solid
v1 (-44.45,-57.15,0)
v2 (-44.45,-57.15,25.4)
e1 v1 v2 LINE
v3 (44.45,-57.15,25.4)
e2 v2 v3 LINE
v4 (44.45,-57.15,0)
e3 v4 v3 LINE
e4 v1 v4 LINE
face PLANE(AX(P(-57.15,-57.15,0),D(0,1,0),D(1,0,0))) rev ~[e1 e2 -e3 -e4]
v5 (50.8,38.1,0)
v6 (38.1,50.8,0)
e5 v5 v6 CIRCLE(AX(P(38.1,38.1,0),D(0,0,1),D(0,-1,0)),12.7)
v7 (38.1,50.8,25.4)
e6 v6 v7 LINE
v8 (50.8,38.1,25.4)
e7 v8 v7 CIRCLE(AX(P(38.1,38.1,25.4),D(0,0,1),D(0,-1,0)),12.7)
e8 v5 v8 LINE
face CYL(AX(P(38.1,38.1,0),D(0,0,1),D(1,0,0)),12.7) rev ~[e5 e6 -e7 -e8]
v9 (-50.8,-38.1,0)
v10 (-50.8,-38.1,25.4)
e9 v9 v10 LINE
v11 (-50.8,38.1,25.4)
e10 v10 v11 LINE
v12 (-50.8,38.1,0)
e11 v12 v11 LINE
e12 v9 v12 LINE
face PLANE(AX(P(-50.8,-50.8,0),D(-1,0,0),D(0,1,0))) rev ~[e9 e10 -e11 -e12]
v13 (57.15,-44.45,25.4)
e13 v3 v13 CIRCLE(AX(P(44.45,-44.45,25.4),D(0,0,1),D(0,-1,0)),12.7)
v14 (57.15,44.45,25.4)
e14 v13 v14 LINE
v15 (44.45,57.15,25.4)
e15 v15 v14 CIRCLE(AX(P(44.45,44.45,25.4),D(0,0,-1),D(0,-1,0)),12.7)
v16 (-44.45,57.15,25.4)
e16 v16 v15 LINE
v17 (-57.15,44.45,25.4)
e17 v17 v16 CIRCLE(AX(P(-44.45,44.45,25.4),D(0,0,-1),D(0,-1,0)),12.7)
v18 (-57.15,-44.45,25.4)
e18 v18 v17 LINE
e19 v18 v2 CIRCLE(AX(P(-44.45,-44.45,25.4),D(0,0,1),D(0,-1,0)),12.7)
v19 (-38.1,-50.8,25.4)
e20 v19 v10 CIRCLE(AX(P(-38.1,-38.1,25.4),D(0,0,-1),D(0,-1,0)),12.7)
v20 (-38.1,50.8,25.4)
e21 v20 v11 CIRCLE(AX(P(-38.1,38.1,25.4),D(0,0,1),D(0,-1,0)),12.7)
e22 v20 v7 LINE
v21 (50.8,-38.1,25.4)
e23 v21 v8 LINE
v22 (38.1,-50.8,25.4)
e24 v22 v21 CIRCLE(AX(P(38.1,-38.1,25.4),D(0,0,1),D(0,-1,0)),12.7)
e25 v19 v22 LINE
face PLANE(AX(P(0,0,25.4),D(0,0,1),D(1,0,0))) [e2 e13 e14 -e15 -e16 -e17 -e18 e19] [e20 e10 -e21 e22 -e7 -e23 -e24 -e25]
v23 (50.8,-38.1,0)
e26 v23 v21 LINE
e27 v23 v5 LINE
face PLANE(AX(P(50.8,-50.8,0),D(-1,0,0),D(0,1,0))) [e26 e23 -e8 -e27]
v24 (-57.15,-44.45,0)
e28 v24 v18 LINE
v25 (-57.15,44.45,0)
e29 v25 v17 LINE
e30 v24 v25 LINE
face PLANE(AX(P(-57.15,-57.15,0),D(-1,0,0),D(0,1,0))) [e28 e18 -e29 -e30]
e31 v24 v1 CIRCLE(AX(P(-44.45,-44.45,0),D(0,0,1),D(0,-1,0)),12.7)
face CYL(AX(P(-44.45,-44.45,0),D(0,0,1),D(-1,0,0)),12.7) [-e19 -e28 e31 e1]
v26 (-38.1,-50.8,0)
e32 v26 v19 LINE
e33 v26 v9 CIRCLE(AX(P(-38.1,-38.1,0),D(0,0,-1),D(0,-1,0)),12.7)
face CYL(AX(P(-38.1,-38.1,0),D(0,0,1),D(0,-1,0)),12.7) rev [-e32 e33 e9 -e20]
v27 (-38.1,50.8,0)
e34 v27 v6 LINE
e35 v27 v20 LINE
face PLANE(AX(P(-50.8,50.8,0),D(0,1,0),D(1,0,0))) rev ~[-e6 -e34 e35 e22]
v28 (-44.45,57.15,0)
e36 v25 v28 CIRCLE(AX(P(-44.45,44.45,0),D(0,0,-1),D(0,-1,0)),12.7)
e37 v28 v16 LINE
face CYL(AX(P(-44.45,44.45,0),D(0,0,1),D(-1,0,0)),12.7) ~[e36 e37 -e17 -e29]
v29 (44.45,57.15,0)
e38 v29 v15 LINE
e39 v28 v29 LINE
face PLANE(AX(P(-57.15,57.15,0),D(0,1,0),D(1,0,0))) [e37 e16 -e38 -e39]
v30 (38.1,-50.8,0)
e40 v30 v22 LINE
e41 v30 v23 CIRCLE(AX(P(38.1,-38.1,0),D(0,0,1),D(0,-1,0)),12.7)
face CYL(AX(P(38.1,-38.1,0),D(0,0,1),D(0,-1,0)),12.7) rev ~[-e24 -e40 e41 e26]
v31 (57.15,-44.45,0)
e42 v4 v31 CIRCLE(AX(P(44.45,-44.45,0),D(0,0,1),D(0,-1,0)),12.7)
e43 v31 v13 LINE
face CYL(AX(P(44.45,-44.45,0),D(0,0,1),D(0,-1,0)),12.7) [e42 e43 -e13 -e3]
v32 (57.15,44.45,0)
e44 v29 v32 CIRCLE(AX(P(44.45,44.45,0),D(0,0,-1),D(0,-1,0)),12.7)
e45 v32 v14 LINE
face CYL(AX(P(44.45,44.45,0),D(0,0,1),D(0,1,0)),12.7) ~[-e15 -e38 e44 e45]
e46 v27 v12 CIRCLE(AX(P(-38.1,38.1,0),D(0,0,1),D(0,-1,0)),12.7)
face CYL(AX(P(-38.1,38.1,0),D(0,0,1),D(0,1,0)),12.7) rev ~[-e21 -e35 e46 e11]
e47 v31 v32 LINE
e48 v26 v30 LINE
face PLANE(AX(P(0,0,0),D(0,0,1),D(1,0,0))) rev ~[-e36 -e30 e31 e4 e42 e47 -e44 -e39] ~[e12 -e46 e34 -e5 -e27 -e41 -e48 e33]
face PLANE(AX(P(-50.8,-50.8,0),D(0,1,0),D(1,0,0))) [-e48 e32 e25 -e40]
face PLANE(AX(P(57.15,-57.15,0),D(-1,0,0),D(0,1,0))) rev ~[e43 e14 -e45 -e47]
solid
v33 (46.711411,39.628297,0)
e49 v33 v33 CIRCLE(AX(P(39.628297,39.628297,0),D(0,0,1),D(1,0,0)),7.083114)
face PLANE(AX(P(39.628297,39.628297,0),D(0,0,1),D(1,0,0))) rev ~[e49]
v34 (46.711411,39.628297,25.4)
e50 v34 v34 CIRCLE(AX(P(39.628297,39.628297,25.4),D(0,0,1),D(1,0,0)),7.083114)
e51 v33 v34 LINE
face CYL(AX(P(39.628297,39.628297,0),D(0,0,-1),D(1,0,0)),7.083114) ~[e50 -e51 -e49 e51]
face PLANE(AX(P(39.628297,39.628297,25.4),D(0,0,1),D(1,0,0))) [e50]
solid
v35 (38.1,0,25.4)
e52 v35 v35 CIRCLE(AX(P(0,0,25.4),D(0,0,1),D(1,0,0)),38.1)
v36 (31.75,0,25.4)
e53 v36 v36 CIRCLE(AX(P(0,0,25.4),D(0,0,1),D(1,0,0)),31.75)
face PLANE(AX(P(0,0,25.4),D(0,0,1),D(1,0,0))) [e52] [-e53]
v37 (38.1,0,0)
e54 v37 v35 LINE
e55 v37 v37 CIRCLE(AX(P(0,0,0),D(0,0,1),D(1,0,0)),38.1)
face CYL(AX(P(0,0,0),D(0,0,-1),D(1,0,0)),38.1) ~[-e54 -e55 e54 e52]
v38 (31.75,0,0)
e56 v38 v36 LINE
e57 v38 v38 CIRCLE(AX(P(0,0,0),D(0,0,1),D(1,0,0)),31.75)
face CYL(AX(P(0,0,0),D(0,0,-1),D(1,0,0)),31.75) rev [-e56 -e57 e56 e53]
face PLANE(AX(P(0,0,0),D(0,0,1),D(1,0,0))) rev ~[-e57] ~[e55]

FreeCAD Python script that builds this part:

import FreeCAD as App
import Part
import Sketcher
from FreeCAD import Vector
Q = App.Units.Quantity


def edges_at(feature, points):
    """Names of the edges that pass closest to the given points."""
    edges = feature.Shape.Edges
    near = lambda p: min(range(len(edges)), key=lambda i: edges[i].distToShape(Part.Vertex(*p))[0])
    return sorted({f"Edge{near(p) + 1}" for p in points})


def add_polygon(sketch, points):
    """Adds a closed chain of lines whose ends are joined by coincident constraints."""
    first, n = sketch.GeometryCount, len(points)
    for a, b in zip(points, points[1:] + points[:1]):
        sketch.addGeometry(Part.LineSegment(App.Vector(*a, 0), App.Vector(*b, 0)), False)
    for i in range(n):
        sketch.addConstraint(Sketcher.Constraint("Coincident", first + i, 2, first + (i + 1) % n, 1))

doc = App.newDocument("Part")
body = doc.addObject("PartDesign::Body", "Body")
body.AllowCompound = True

sketch1 = doc.addObject("Sketcher::SketchObject", "Sketch")
body.addObject(sketch1)
sketch1.AttachmentSupport = (doc.XY_Plane, [""])
sketch1.MapMode = "FlatFace"
add_polygon(sketch1, [(-57, 57), (-57, -57), (57, -57), (57, 57)])
add_polygon(sketch1, [(51, -51), (-51, -51), (-51, 51), (51, 51)])
sketch1.addGeometry(Part.Circle(Vector(0, 0, 0), Vector(0, 0, 1), 38), False)
sketch1.addGeometry(Part.Circle(Vector(0, 0, 0), Vector(0, 0, 1), 32), False)
sketch1.addGeometry(Part.Circle(Vector(40, 40, 0), Vector(0, 0, 1), 7), False)
sketch1.addConstraint(Sketcher.Constraint("Vertical", 0))
sketch1.addConstraint(Sketcher.Constraint("Horizontal", 1))
sketch1.addConstraint(Sketcher.Constraint("Vertical", 2))
sketch1.addConstraint(Sketcher.Constraint("Horizontal", 3))
sketch1.addConstraint(Sketcher.Constraint("Horizontal", 4))
sketch1.addConstraint(Sketcher.Constraint("Vertical", 5))
sketch1.addConstraint(Sketcher.Constraint("Horizontal", 6))
sketch1.addConstraint(Sketcher.Constraint("Vertical", 7))
sketch1.addConstraint(Sketcher.Constraint("Coincident", 8, 3, -1, 1))
sketch1.addConstraint(Sketcher.Constraint("Coincident", 9, 3, -1, 1))
sketch1.addConstraint(Sketcher.Constraint("Symmetric", 0, 2, 2, 2, -1, 1))
sketch1.addConstraint(Sketcher.Constraint("Symmetric", 4, 2, 6, 2, -1, 1))
sketch1.addConstraint(Sketcher.Constraint("Equal", 3, 0))
sketch1.addConstraint(Sketcher.Constraint("Equal", 6, 5))
sketch1.addConstraint(Sketcher.Constraint("Diameter", 8, Q("3 in")))
sketch1.addConstraint(Sketcher.Constraint("Diameter", 9, Q("2.5 in")))
sketch1.addConstraint(Sketcher.Constraint("DistanceX", 4, 2, 4, 1, Q("4 in")))
sketch1.addConstraint(Sketcher.Constraint("DistanceX", 1, 1, 1, 2, Q("4.5 in")))
sketch1.addConstraint(Sketcher.Constraint("Diameter", 10, Q("14.166228 mm")))
sketch1.addConstraint(Sketcher.Constraint("DistanceX", -1, 1, 10, 3, Q("39.628297 mm")))
sketch1.addConstraint(Sketcher.Constraint("DistanceY", -1, 1, 10, 3, Q("39.628297 mm")))
pad1 = doc.addObject("PartDesign::Pad", "Pad")
body.addObject(pad1)
pad1.Profile = sketch1
pad1.Length = Q("1 in")
doc.recompute()

fillet = doc.addObject("PartDesign::Fillet", "Fillet")
body.addObject(fillet)
fillet.Base = (pad1, edges_at(pad1, [
    (-57.15, -57.15, 12.7),
    (-50.8, 50.8, 12.7),
    (-50.8, -50.8, 12.7),
    (50.8, 50.8, 12.7),
    (57.15, -57.15, 12.7),
    (-57.15, 57.15, 12.7),
    (57.15, 57.15, 12.7),
    (50.8, -50.8, 12.7),
]))
fillet.Radius = Q("0.5 in")

doc.recompute()
